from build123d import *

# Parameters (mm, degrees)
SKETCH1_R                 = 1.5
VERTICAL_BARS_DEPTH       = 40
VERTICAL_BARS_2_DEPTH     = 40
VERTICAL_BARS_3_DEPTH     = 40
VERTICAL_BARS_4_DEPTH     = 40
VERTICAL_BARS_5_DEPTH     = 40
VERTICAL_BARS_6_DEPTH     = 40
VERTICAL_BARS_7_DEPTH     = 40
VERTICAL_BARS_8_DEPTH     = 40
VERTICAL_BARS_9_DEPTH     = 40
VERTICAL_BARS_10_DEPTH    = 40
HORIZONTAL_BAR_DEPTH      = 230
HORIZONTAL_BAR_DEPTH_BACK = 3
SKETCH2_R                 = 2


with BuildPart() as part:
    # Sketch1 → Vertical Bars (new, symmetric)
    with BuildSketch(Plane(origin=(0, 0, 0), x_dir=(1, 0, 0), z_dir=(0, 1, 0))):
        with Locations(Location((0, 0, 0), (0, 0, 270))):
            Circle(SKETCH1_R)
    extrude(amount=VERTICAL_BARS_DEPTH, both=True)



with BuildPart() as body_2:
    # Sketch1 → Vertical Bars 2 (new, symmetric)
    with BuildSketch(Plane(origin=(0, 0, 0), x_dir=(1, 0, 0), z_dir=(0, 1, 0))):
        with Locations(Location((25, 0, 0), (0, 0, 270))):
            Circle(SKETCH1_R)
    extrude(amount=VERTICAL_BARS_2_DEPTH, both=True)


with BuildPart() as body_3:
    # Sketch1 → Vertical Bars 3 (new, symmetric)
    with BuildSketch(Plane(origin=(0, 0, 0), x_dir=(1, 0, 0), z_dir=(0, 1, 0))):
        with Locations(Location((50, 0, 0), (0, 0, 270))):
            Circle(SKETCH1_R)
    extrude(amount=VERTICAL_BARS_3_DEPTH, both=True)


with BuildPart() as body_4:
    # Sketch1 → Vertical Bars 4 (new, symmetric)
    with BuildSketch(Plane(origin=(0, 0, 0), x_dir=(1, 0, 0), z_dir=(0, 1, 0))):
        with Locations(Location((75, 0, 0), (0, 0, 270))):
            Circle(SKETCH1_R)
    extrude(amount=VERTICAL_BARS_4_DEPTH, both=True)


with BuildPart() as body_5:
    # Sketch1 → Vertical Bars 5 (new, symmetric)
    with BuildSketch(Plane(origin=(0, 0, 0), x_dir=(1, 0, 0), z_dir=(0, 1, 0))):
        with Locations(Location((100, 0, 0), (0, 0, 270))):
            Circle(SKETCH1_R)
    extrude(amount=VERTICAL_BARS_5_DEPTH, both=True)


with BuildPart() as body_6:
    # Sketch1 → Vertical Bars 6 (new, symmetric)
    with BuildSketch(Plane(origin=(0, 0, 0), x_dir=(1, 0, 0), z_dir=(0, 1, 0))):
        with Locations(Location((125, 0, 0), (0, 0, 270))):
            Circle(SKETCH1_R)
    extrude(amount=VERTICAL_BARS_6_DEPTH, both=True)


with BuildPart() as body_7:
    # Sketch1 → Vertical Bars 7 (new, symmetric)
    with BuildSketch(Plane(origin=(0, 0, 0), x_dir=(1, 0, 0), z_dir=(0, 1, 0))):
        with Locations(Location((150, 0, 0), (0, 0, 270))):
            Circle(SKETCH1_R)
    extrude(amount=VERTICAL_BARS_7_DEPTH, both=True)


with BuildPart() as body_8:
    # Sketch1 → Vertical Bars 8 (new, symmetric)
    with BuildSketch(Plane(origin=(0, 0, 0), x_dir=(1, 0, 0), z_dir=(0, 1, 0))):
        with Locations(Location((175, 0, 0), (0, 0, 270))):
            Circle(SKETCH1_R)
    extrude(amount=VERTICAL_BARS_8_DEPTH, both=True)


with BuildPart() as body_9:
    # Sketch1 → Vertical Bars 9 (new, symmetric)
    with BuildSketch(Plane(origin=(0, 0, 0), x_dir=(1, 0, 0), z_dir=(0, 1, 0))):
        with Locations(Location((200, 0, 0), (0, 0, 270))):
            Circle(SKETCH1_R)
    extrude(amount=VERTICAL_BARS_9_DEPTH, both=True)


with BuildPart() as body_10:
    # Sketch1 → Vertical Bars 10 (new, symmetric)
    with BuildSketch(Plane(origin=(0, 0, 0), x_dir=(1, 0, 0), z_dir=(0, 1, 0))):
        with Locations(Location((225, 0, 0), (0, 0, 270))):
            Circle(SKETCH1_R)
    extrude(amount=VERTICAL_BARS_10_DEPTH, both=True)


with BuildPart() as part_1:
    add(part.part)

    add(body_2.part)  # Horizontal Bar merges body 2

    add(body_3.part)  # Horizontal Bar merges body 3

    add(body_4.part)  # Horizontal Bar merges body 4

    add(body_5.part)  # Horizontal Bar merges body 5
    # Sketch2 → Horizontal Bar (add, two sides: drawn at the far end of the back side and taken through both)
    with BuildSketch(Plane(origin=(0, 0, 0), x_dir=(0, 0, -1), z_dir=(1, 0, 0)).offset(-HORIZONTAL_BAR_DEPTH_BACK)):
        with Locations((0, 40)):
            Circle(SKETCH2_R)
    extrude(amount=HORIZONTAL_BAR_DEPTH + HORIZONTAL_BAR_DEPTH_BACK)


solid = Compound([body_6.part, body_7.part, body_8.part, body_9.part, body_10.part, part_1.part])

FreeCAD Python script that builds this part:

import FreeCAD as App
import Part
import Sketcher
from FreeCAD import Vector
Q = App.Units.Quantity

doc = App.newDocument("Part")
body = doc.addObject("PartDesign::Body", "Body")

# Sketch on XZ plane
sketch1 = doc.addObject("Sketcher::SketchObject", "Sketch")
body.addObject(sketch1)
sketch1.AttachmentSupport = (doc.XZ_Plane, [""])
sketch1.MapMode = "FlatFace"
sketch1.addGeometry(Part.Circle(Vector(0, 0, 0), Vector(0, 0, 1), 1.5), False)
sketch1.addConstraint([
    Sketcher.Constraint("Coincident", 0, 3, -1, 1),
    Sketcher.Constraint("Diameter", 0, Q("3 mm")),
])
pad1 = doc.addObject("PartDesign::Pad", "Pad")
body.addObject(pad1)
pad1.Profile = sketch1
pad1.Length = 80
pad1.Midplane = True
body2 = doc.addObject("PartDesign::Body", "Body001")

# Sketch on XZ plane
sketch2 = doc.addObject("Sketcher::SketchObject", "Sketch001")
body2.addObject(sketch2)
sketch2.AttachmentSupport = (doc.getObject("XZ_Plane001"), [""])
sketch2.MapMode = "FlatFace"
sketch2.addGeometry(Part.Circle(Vector(25, 0, 0), Vector(0, 0, 1), 1.5), False)
sketch2.addConstraint([
    Sketcher.Constraint("PointOnObject", 0, 3, -1),
    Sketcher.Constraint("Diameter", 0, Q("3 mm")),
    Sketcher.Constraint("DistanceX", -1, 1, 0, 3, Q("25 mm")),
])
pad2 = doc.addObject("PartDesign::Pad", "Pad001")
body2.addObject(pad2)
pad2.Profile = sketch2
pad2.Length = 80
pad2.Midplane = True
body3 = doc.addObject("PartDesign::Body", "Body002")

# Sketch on XZ plane
sketch3 = doc.addObject("Sketcher::SketchObject", "Sketch002")
body3.addObject(sketch3)
sketch3.AttachmentSupport = (doc.getObject("XZ_Plane002"), [""])
sketch3.MapMode = "FlatFace"
sketch3.addGeometry(Part.Circle(Vector(50, 0, 0), Vector(0, 0, 1), 1.5), False)
sketch3.addConstraint([
    Sketcher.Constraint("PointOnObject", 0, 3, -1),
    Sketcher.Constraint("Diameter", 0, Q("3 mm")),
    Sketcher.Constraint("DistanceX", -1, 1, 0, 3, Q("50 mm")),
])
pad3 = doc.addObject("PartDesign::Pad", "Pad002")
body3.addObject(pad3)
pad3.Profile = sketch3
pad3.Length = 80
pad3.Midplane = True
body4 = doc.addObject("PartDesign::Body", "Body003")

# Sketch on XZ plane
sketch4 = doc.addObject("Sketcher::SketchObject", "Sketch003")
body4.addObject(sketch4)
sketch4.AttachmentSupport = (doc.getObject("XZ_Plane003"), [""])
sketch4.MapMode = "FlatFace"
sketch4.addGeometry(Part.Circle(Vector(75, 0, 0), Vector(0, 0, 1), 1.5), False)
sketch4.addConstraint([
    Sketcher.Constraint("PointOnObject", 0, 3, -1),
    Sketcher.Constraint("Diameter", 0, Q("3 mm")),
    Sketcher.Constraint("DistanceX", -1, 1, 0, 3, Q("75 mm")),
])
pad4 = doc.addObject("PartDesign::Pad", "Pad003")
body4.addObject(pad4)
pad4.Profile = sketch4
pad4.Length = 80
pad4.Midplane = True
body5 = doc.addObject("PartDesign::Body", "Body004")

# Sketch on XZ plane
sketch5 = doc.addObject("Sketcher::SketchObject", "Sketch004")
body5.addObject(sketch5)
sketch5.AttachmentSupport = (doc.getObject("XZ_Plane004"), [""])
sketch5.MapMode = "FlatFace"
sketch5.addGeometry(Part.Circle(Vector(100, 0, 0), Vector(0, 0, 1), 1.5), False)
sketch5.addConstraint([
    Sketcher.Constraint("PointOnObject", 0, 3, -1),
    Sketcher.Constraint("Diameter", 0, Q("3 mm")),
    Sketcher.Constraint("DistanceX", -1, 1, 0, 3, Q("100 mm")),
])
pad5 = doc.addObject("PartDesign::Pad", "Pad004")
body5.addObject(pad5)
pad5.Profile = sketch5
pad5.Length = 80
pad5.Midplane = True
body6 = doc.addObject("PartDesign::Body", "Body005")

# Sketch on XZ plane
sketch6 = doc.addObject("Sketcher::SketchObject", "Sketch005")
body6.addObject(sketch6)
sketch6.AttachmentSupport = (doc.getObject("XZ_Plane005"), [""])
sketch6.MapMode = "FlatFace"
sketch6.addGeometry(Part.Circle(Vector(125, 0, 0), Vector(0, 0, 1), 1.5), False)
sketch6.addConstraint([
    Sketcher.Constraint("PointOnObject", 0, 3, -1),
    Sketcher.Constraint("Diameter", 0, Q("3 mm")),
    Sketcher.Constraint("DistanceX", -1, 1, 0, 3, Q("125 mm")),
])
pad6 = doc.addObject("PartDesign::Pad", "Pad005")
body6.addObject(pad6)
pad6.Profile = sketch6
pad6.Length = 80
pad6.Midplane = True
body7 = doc.addObject("PartDesign::Body", "Body006")

# Sketch on XZ plane
sketch7 = doc.addObject("Sketcher::SketchObject", "Sketch006")
body7.addObject(sketch7)
sketch7.AttachmentSupport = (doc.getObject("XZ_Plane006"), [""])
sketch7.MapMode = "FlatFace"
sketch7.addGeometry(Part.Circle(Vector(150, 0, 0), Vector(0, 0, 1), 1.5), False)
sketch7.addConstraint([
    Sketcher.Constraint("PointOnObject", 0, 3, -1),
    Sketcher.Constraint("Diameter", 0, Q("3 mm")),
    Sketcher.Constraint("DistanceX", -1, 1, 0, 3, Q("150 mm")),
])
pad7 = doc.addObject("PartDesign::Pad", "Pad006")
body7.addObject(pad7)
pad7.Profile = sketch7
pad7.Length = 80
pad7.Midplane = True
body8 = doc.addObject("PartDesign::Body", "Body007")

# Sketch on XZ plane
sketch8 = doc.addObject("Sketcher::SketchObject", "Sketch007")
body8.addObject(sketch8)
sketch8.AttachmentSupport = (doc.getObject("XZ_Plane007"), [""])
sketch8.MapMode = "FlatFace"
sketch8.addGeometry(Part.Circle(Vector(175, 0, 0), Vector(0, 0, 1), 1.5), False)
sketch8.addConstraint([
    Sketcher.Constraint("PointOnObject", 0, 3, -1),
    Sketcher.Constraint("Diameter", 0, Q("3 mm")),
    Sketcher.Constraint("DistanceX", -1, 1, 0, 3, Q("175 mm")),
])
pad8 = doc.addObject("PartDesign::Pad", "Pad007")
body8.addObject(pad8)
pad8.Profile = sketch8
pad8.Length = 80
pad8.Midplane = True
body9 = doc.addObject("PartDesign::Body", "Body008")

# Sketch on XZ plane
sketch9 = doc.addObject("Sketcher::SketchObject", "Sketch008")
body9.addObject(sketch9)
sketch9.AttachmentSupport = (doc.getObject("XZ_Plane008"), [""])
sketch9.MapMode = "FlatFace"
sketch9.addGeometry(Part.Circle(Vector(200, 0, 0), Vector(0, 0, 1), 1.5), False)
sketch9.addConstraint([
    Sketcher.Constraint("PointOnObject", 0, 3, -1),
    Sketcher.Constraint("Diameter", 0, Q("3 mm")),
    Sketcher.Constraint("DistanceX", -1, 1, 0, 3, Q("200 mm")),
])
pad9 = doc.addObject("PartDesign::Pad", "Pad008")
body9.addObject(pad9)
pad9.Profile = sketch9
pad9.Length = 80
pad9.Midplane = True
body10 = doc.addObject("PartDesign::Body", "Body009")

# Sketch on XZ plane
sketch10 = doc.addObject("Sketcher::SketchObject", "Sketch009")
body10.addObject(sketch10)
sketch10.AttachmentSupport = (doc.getObject("XZ_Plane009"), [""])
sketch10.MapMode = "FlatFace"
sketch10.addGeometry(Part.Circle(Vector(225, 0, 0), Vector(0, 0, 1), 1.5), False)
sketch10.addConstraint([
    Sketcher.Constraint("PointOnObject", 0, 3, -1),
    Sketcher.Constraint("Diameter", 0, Q("3 mm")),
    Sketcher.Constraint("DistanceX", -1, 1, 0, 3, Q("225 mm")),
])
pad10 = doc.addObject("PartDesign::Pad", "Pad009")
body10.addObject(pad10)
pad10.Profile = sketch10
pad10.Length = 80
pad10.Midplane = True
body.AllowCompound = True
doc.recompute()

boolean = doc.addObject("PartDesign::Boolean", "Boolean")
body.addObject(boolean)
boolean.Type = "Fuse"
boolean.addObjects([body2])
doc.recompute()

boolean2 = doc.addObject("PartDesign::Boolean", "Boolean001")
body.addObject(boolean2)
boolean2.Type = "Fuse"
boolean2.addObjects([body3])
doc.recompute()

boolean3 = doc.addObject("PartDesign::Boolean", "Boolean002")
body.addObject(boolean3)
boolean3.Type = "Fuse"
boolean3.addObjects([body4])
doc.recompute()

boolean4 = doc.addObject("PartDesign::Boolean", "Boolean003")
body.addObject(boolean4)
boolean4.Type = "Fuse"
boolean4.addObjects([body5])

# Sketch on YZ plane
sketch11 = doc.addObject("Sketcher::SketchObject", "Sketch010")
body.addObject(sketch11)
sketch11.AttachmentSupport = (doc.YZ_Plane, [""])
sketch11.MapMode = "FlatFace"
sketch11.addGeometry(Part.Circle(Vector(40, 0, 0), Vector(0, 0, 1), 2), False)
sketch11.addConstraint([
    Sketcher.Constraint("PointOnObject", 0, 3, -1),
    Sketcher.Constraint("Diameter", 0, Q("4 mm")),
    Sketcher.Constraint("DistanceX", -1, 1, 0, 3, Q("40 mm")),
])
pad11 = doc.addObject("PartDesign::Pad", "Pad010")
body.addObject(pad11)
pad11.Profile = sketch11
pad11.Type = "TwoLengths"
pad11.Length = 230
pad11.Length2 = 3

doc.recompute()
